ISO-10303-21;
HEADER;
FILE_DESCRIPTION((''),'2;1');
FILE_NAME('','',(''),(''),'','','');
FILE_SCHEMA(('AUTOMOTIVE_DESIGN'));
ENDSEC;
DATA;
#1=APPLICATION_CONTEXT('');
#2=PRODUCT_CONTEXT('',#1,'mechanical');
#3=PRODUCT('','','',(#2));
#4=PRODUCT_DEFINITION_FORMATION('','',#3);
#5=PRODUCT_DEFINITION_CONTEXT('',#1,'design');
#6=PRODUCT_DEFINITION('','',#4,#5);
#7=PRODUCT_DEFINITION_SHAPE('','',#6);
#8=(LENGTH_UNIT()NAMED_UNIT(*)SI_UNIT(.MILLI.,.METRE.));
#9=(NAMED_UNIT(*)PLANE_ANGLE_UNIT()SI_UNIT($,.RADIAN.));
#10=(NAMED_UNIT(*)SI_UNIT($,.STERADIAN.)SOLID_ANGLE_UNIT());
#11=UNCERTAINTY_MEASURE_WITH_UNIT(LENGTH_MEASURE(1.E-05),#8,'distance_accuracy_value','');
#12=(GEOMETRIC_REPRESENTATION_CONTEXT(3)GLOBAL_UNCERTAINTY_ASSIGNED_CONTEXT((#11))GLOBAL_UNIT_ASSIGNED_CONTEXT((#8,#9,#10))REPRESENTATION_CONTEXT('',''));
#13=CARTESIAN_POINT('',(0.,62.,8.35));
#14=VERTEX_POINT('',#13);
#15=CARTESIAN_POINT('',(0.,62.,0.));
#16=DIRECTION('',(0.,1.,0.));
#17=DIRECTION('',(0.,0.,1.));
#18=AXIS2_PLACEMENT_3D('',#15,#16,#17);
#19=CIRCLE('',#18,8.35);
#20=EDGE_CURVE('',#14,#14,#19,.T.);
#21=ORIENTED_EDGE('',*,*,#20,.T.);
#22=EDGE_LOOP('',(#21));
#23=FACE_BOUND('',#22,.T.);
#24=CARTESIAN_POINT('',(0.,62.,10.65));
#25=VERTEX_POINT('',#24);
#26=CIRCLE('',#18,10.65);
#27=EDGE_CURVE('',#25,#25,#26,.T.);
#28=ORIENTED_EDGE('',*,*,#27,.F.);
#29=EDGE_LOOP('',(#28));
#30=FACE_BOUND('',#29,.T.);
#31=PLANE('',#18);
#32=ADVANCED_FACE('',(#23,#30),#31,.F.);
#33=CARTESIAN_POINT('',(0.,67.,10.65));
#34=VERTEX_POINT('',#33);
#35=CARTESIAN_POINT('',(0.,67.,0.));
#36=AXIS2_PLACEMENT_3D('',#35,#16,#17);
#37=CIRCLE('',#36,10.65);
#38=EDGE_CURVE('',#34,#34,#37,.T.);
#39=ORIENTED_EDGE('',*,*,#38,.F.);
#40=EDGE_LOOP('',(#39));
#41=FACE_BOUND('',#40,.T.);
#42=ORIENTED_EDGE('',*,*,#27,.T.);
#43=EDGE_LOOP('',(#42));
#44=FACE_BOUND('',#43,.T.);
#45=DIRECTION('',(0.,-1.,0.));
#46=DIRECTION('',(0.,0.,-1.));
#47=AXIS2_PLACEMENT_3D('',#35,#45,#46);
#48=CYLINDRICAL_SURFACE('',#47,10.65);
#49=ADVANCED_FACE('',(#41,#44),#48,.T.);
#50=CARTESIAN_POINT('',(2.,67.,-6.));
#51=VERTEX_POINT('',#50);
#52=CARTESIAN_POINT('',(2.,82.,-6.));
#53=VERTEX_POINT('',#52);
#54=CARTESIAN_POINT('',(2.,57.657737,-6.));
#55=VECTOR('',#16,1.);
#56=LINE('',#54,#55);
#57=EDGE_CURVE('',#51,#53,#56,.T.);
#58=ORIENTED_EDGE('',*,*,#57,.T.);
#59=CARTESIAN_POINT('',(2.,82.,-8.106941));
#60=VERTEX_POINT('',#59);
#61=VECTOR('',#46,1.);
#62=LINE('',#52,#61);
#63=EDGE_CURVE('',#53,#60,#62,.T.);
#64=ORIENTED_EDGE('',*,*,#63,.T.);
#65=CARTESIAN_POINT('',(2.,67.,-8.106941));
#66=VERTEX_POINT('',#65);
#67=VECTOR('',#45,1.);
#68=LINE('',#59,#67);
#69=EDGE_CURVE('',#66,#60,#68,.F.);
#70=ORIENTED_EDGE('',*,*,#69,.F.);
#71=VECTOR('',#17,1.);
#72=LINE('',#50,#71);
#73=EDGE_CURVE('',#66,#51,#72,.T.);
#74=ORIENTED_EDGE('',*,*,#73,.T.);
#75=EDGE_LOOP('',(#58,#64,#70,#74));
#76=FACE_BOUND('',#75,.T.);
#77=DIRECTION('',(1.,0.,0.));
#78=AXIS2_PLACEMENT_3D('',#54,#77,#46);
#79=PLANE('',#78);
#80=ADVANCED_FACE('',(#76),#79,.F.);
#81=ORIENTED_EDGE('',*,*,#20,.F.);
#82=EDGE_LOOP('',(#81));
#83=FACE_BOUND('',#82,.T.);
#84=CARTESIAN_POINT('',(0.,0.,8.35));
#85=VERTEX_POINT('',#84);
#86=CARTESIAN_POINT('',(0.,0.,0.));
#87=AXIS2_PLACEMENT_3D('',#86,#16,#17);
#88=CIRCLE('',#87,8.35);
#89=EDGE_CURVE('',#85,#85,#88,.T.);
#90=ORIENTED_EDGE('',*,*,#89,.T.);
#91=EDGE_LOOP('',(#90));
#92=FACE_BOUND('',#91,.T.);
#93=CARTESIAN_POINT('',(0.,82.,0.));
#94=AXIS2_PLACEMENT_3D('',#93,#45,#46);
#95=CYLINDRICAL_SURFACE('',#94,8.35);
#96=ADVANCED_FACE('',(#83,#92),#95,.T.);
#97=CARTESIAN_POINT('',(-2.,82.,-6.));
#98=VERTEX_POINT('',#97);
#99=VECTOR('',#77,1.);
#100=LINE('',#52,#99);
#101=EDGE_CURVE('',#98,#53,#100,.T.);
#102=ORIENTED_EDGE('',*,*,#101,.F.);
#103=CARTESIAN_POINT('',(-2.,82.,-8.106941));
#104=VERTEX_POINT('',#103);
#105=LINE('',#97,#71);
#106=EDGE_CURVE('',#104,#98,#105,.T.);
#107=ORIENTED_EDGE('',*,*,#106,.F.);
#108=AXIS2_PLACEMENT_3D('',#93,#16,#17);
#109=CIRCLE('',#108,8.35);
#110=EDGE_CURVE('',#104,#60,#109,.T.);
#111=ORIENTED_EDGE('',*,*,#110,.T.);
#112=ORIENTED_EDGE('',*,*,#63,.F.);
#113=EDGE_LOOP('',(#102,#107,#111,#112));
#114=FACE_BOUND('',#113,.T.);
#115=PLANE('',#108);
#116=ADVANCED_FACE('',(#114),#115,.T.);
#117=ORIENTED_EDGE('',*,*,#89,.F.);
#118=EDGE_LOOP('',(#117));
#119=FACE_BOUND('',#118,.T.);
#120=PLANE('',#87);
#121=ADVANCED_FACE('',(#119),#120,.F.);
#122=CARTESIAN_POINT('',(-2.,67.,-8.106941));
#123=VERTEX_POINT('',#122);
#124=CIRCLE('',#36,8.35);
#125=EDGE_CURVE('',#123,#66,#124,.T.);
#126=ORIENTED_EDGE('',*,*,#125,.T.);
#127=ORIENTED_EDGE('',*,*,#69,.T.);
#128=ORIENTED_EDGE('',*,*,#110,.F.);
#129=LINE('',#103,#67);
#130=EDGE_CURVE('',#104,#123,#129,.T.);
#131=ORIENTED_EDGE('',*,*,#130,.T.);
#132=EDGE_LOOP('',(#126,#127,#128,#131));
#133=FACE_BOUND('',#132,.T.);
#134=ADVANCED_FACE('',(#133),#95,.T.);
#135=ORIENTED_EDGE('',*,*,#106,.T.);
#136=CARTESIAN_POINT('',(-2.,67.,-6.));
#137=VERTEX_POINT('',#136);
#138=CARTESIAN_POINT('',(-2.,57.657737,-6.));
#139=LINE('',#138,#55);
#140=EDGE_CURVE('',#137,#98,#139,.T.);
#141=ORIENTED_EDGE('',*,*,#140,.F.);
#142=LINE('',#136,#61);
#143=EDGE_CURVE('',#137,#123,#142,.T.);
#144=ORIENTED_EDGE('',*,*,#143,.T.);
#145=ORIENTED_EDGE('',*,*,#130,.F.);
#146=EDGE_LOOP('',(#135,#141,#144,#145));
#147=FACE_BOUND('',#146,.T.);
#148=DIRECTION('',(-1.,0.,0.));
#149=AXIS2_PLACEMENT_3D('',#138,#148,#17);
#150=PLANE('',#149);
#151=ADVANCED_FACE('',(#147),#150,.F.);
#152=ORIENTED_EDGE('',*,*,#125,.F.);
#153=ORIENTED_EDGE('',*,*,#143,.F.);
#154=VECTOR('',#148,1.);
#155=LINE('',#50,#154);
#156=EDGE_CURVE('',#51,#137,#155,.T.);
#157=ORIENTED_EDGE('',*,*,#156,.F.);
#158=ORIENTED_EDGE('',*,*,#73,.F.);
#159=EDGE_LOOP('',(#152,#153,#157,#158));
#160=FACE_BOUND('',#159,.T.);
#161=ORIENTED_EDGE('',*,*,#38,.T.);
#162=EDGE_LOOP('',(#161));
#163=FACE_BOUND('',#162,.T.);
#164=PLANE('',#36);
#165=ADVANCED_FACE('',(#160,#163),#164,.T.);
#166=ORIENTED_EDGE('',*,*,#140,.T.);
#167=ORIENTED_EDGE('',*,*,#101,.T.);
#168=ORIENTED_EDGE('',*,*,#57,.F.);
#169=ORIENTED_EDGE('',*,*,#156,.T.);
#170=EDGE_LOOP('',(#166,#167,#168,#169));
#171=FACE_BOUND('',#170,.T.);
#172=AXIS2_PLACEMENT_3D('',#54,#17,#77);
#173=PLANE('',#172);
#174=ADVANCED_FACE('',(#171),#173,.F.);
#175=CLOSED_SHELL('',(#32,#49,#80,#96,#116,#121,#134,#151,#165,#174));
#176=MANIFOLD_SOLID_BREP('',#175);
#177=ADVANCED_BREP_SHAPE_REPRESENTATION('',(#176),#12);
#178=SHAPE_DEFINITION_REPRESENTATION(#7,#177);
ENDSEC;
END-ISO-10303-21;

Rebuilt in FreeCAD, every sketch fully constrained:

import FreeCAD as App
import Part
import Sketcher
from FreeCAD import Vector
Q = App.Units.Quantity


def add_polygon(sketch, points):
    """Adds a closed chain of lines whose ends are joined by coincident constraints."""
    first, n = sketch.GeometryCount, len(points)
    for a, b in zip(points, points[1:] + points[:1]):
        sketch.addGeometry(Part.LineSegment(App.Vector(*a, 0), App.Vector(*b, 0)), False)
    for i in range(n):
        sketch.addConstraint(Sketcher.Constraint("Coincident", first + i, 2, first + (i + 1) % n, 1))

doc = App.newDocument("Part")
body = doc.addObject("PartDesign::Body", "Body")

# Sketch on XZ plane
sketch1 = doc.addObject("Sketcher::SketchObject", "Sketch")
body.addObject(sketch1)
sketch1.AttachmentSupport = (doc.XZ_Plane, [""])
sketch1.MapMode = "FlatFace"
sketch1.addGeometry(Part.Circle(Vector(0, 0, 0), Vector(0, 0, 1), 8), False)
sketch1.addConstraint([
    Sketcher.Constraint("Coincident", 0, 3, -1, 1),
    Sketcher.Constraint("Diameter", 0, Q("16.7 mm")),
])
pad1 = doc.addObject("PartDesign::Pad", "Pad")
body.addObject(pad1)
pad1.Profile = sketch1
pad1.Length = 82
pad1.Reversed = True

# Sketch on XZ plane
sketch2 = doc.addObject("Sketcher::SketchObject", "Sketch001")
body.addObject(sketch2)
sketch2.AttachmentSupport = (doc.XZ_Plane, [""])
sketch2.MapMode = "FlatFace"
sketch2.AttachmentOffset = App.Placement(Vector(0, 0, -62), App.Rotation())
sketch2.addGeometry(Part.Circle(Vector(0, 0, 0), Vector(0, 0, 1), 11), False)
sketch2.addConstraint([
    Sketcher.Constraint("Coincident", 0, 3, -1, 1),
    Sketcher.Constraint("Diameter", 0, Q("21.3 mm")),
])
pad2 = doc.addObject("PartDesign::Pad", "Pad001")
body.addObject(pad2)
pad2.Profile = sketch2
pad2.Length = 5
pad2.Reversed = True

# Sketch on XZ plane
sketch3 = doc.addObject("Sketcher::SketchObject", "Sketch002")
body.addObject(sketch3)
sketch3.AttachmentSupport = (doc.XZ_Plane, [""])
sketch3.MapMode = "FlatFace"
sketch3.AttachmentOffset = App.Placement(Vector(0, 0, -82), App.Rotation())
add_polygon(sketch3, [(-2, -14.4), (-2, -6), (2, -6), (2, -14.4)])  # lines 0-3
sketch3.addConstraint([
    Sketcher.Constraint("Vertical", 0),
    Sketcher.Constraint("Horizontal", 1),
    Sketcher.Constraint("Vertical", 2),
    Sketcher.Constraint("Horizontal", 3),
    Sketcher.Constraint("DistanceX", 1, 1, 1, 2, Q("4 mm")),
    Sketcher.Constraint("DistanceX", 0, 2, -1, 1, Q("2 mm")),
    Sketcher.Constraint("DistanceY", 0, 2, -1, 1, Q("6 mm")),
    Sketcher.Constraint("DistanceY", 0, 1, 0, 2, Q("8.442623 mm")),
])
pocket1 = doc.addObject("PartDesign::Pocket", "Pocket")
body.addObject(pocket1)
pocket1.Profile = sketch3
pocket1.Length = 15
pocket1.Reversed = True

doc.recompute()
